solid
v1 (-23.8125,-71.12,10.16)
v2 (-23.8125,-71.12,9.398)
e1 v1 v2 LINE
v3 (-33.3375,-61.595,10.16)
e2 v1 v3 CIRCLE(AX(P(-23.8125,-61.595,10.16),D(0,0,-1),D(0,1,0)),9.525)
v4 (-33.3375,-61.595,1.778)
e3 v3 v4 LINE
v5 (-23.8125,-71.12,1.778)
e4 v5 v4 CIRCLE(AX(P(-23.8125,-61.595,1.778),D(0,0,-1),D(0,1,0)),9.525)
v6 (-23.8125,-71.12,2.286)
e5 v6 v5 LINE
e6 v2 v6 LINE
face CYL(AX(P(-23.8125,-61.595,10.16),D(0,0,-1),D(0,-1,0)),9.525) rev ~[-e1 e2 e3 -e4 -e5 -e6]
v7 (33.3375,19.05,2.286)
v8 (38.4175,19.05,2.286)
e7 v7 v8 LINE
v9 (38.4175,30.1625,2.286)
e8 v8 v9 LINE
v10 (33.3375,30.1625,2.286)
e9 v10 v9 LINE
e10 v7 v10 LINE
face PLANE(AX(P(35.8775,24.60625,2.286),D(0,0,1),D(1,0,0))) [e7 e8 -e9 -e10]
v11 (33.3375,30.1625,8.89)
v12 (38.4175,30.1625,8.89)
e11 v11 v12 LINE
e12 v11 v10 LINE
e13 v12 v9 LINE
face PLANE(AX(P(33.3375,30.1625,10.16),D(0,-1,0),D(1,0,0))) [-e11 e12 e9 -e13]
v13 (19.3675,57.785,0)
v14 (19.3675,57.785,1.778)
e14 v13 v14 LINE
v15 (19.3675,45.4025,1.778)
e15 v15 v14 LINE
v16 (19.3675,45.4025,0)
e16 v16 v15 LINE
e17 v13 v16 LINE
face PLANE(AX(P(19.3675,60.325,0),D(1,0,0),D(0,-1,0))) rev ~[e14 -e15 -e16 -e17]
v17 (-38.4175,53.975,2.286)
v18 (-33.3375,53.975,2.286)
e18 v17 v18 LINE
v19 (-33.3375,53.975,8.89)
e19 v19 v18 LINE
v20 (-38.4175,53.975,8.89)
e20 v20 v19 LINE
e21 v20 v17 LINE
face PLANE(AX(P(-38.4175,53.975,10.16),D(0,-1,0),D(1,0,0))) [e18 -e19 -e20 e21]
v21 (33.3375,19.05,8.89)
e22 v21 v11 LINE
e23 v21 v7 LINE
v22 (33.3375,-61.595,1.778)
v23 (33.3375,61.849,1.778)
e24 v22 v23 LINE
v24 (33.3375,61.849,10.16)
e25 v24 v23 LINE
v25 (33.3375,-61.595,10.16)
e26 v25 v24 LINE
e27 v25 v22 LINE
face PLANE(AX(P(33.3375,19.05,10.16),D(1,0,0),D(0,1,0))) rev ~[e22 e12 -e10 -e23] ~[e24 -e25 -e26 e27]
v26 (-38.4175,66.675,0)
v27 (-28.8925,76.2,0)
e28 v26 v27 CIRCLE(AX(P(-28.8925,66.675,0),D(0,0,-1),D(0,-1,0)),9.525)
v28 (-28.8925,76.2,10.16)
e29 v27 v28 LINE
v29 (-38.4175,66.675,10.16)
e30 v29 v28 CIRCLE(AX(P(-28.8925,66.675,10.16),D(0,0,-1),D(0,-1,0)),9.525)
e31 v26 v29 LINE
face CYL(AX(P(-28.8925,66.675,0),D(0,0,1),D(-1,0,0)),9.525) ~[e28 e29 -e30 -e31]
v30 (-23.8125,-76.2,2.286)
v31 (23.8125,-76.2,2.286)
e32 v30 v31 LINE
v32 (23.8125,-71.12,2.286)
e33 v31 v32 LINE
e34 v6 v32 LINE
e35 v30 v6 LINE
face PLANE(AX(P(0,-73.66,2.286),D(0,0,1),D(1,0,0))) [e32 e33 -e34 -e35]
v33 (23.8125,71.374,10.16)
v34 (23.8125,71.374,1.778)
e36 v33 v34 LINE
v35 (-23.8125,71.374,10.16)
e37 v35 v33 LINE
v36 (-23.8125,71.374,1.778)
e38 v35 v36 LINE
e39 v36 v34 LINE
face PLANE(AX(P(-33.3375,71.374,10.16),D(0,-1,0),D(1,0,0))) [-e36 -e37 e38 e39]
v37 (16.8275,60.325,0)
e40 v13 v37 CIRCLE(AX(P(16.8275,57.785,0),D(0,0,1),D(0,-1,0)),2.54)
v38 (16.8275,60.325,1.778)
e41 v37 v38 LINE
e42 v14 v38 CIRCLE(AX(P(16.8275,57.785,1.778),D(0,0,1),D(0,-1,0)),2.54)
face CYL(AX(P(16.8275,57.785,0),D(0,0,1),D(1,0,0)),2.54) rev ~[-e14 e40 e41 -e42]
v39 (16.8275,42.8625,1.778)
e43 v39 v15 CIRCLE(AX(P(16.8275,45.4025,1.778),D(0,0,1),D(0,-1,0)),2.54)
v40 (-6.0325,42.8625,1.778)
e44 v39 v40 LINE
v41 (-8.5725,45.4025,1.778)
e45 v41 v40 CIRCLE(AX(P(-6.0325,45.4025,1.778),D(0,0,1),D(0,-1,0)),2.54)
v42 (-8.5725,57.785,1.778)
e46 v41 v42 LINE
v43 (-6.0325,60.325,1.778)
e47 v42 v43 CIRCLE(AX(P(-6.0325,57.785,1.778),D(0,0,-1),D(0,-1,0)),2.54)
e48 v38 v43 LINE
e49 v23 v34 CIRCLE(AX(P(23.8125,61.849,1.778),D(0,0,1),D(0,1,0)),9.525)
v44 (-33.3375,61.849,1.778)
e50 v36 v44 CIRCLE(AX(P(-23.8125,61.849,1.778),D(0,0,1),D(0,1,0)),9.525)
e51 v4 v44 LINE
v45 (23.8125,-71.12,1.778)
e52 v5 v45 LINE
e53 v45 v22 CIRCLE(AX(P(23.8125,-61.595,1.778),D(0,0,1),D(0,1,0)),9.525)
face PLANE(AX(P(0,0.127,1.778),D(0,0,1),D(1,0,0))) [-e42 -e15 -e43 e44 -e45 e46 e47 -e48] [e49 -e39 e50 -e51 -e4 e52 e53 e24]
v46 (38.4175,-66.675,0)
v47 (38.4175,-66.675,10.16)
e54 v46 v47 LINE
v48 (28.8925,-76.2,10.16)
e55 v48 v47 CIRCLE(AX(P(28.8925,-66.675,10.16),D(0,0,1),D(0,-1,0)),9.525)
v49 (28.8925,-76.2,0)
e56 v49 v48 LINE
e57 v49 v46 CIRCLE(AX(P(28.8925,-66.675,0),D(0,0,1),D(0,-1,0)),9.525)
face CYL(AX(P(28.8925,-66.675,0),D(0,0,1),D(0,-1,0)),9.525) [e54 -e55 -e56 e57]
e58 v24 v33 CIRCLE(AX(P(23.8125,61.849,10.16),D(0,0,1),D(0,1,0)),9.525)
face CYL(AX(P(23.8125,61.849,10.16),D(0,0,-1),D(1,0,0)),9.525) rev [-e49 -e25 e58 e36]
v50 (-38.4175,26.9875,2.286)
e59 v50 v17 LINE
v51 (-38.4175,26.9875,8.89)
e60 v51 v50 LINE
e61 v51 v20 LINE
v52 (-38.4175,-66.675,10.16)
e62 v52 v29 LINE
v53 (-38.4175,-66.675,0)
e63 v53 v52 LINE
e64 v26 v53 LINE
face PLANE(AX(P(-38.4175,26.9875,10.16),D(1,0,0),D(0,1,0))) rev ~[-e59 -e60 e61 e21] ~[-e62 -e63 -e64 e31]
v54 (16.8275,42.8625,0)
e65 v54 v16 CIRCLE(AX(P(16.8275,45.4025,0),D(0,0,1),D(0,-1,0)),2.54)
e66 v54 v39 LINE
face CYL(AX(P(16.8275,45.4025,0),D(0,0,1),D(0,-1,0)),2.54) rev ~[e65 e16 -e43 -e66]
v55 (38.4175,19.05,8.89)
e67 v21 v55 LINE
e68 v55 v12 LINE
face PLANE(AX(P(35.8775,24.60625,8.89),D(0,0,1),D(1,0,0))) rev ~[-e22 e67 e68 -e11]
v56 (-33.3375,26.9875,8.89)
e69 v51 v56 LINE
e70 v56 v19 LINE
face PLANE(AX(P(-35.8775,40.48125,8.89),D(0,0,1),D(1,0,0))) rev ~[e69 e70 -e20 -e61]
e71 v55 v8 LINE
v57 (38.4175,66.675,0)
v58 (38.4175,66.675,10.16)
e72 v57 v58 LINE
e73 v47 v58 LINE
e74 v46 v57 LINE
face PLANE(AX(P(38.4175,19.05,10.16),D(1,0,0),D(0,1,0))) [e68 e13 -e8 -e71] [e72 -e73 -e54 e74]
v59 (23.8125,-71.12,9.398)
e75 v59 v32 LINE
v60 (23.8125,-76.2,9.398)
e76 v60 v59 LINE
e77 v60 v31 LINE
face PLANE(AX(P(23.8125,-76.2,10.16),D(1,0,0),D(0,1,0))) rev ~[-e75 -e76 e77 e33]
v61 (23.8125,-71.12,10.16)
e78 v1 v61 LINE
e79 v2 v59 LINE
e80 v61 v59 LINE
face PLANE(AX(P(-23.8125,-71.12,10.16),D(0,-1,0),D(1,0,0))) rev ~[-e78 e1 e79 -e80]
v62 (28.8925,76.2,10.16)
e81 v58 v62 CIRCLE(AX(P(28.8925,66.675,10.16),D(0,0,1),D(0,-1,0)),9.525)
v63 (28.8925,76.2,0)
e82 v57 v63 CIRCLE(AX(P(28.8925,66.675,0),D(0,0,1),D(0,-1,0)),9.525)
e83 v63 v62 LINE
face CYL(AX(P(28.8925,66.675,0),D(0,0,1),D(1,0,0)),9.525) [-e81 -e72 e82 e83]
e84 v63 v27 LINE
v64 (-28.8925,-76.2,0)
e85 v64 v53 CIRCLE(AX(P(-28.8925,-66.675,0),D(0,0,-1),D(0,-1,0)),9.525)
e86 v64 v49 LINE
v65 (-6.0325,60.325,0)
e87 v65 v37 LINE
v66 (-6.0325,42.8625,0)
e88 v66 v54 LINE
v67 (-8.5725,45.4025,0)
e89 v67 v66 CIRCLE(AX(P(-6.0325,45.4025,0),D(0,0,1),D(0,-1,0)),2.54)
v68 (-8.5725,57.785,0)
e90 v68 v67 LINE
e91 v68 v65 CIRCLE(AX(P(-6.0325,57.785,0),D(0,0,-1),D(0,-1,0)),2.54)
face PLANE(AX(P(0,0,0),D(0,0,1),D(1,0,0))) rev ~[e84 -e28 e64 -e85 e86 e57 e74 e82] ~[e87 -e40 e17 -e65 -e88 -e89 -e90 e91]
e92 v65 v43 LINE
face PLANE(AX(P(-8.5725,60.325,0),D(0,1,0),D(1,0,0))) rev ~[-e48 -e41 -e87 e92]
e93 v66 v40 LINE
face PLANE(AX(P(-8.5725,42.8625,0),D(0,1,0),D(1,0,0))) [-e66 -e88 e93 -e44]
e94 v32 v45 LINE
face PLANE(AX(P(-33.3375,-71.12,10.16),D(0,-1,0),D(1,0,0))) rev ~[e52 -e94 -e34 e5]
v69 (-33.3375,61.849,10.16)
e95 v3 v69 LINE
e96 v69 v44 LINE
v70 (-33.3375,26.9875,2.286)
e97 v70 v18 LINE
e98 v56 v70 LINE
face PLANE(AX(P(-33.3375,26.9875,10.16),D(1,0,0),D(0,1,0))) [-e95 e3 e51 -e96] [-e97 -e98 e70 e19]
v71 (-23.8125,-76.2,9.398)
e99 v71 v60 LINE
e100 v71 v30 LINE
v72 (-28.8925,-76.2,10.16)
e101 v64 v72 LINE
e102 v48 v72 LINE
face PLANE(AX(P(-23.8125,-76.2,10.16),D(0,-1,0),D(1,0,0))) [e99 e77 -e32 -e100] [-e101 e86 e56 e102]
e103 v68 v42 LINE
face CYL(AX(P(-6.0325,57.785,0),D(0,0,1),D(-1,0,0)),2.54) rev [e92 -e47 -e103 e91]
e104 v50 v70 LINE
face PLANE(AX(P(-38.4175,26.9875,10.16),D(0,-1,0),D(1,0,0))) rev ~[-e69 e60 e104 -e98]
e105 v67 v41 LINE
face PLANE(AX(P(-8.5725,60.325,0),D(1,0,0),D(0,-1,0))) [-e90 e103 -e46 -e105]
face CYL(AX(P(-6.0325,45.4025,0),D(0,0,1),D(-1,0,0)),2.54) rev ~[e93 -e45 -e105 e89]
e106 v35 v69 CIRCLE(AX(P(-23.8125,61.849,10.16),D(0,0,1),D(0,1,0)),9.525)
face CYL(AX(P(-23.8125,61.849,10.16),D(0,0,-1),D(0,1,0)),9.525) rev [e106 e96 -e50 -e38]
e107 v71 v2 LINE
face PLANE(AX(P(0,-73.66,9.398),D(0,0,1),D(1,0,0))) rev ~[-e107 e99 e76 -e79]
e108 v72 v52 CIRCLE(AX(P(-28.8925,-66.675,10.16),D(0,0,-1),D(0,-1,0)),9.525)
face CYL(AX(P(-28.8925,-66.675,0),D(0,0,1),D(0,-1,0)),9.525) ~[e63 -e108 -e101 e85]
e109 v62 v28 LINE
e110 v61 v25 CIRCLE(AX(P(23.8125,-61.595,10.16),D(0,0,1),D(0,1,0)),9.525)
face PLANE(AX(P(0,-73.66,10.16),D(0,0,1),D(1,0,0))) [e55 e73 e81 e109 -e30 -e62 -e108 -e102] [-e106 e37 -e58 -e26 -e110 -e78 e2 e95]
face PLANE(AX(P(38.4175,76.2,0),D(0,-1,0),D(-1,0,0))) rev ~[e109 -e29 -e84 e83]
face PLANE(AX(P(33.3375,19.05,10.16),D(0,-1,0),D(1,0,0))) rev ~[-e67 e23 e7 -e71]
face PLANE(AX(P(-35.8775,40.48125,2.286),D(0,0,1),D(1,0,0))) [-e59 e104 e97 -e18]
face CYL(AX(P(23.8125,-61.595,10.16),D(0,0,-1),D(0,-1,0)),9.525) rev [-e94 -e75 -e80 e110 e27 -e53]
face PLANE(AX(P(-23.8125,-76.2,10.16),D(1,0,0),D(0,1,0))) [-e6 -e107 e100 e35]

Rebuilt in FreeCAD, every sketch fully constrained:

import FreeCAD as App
import Part
import Sketcher
from FreeCAD import Vector
Q = App.Units.Quantity


def edges_at(feature, points):
    """Names of the edges that pass closest to the given points."""
    edges = feature.Shape.Edges
    near = lambda p: min(range(len(edges)), key=lambda i: edges[i].distToShape(Part.Vertex(*p))[0])
    return sorted({f"Edge{near(p) + 1}" for p in points})


def add_polygon(sketch, points):
    """Adds a closed chain of lines whose ends are joined by coincident constraints."""
    first, n = sketch.GeometryCount, len(points)
    for a, b in zip(points, points[1:] + points[:1]):
        sketch.addGeometry(Part.LineSegment(App.Vector(*a, 0), App.Vector(*b, 0)), False)
    for i in range(n):
        sketch.addConstraint(Sketcher.Constraint("Coincident", first + i, 2, first + (i + 1) % n, 1))

doc = App.newDocument("Part")
body = doc.addObject("PartDesign::Body", "Body")

sketch1 = body.newObject("Sketcher::SketchObject", "Sketch")
sketch1.AttachmentSupport = (doc.getObject("XY_Plane"), [""])
sketch1.MapMode = "FlatFace"
add_polygon(sketch1, [(-38, -76), (38, -76), (38, 76), (-38, 76)])
sketch1.addConstraint([
    Sketcher.Constraint("Horizontal", 0),
    Sketcher.Constraint("Vertical", 1),
    Sketcher.Constraint("Horizontal", 2),
    Sketcher.Constraint("Vertical", 3),
    Sketcher.Constraint("Symmetric", 0, 2, 2, 2, -1, 1),
    Sketcher.Constraint("DistanceY", 1, 1, 1, 2, Q("6 in")),
    Sketcher.Constraint("DistanceX", 0, 1, 0, 2, Q("3.025 in")),
])
pad1 = body.newObject("PartDesign::Pad", "Pad")
pad1.Profile = sketch1
pad1.Length = Q("0.4 in")

sketch2 = body.newObject("Sketcher::SketchObject", "Sketch001")
sketch2.AttachmentSupport = (doc.getObject("XY_Plane"), [""])
sketch2.MapMode = "FlatFace"
sketch2.AttachmentOffset = App.Placement(Vector(0, 0, 0.4 * 25.4), App.Rotation())
add_polygon(sketch2, [(-33, 71), (-33, -71), (33, -71), (33, 71)])
sketch2.addConstraint([
    Sketcher.Constraint("Vertical", 0),
    Sketcher.Constraint("Horizontal", 1),
    Sketcher.Constraint("Vertical", 2),
    Sketcher.Constraint("Horizontal", 3),
    Sketcher.Constraint("DistanceY", 0, 2, 0, 1, Q("5.61 in")),
    Sketcher.Constraint("DistanceY", 0, 2, -1, 1, Q("2.8 in")),
    Sketcher.Constraint("DistanceX", 1, 1, 1, 2, Q("2.625 in")),
    Sketcher.Constraint("DistanceX", 0, 2, -1, 1, Q("1.3125 in")),
])
pocket1 = body.newObject("PartDesign::Pocket", "Pocket")
pocket1.Profile = sketch2
pocket1.Length = Q("0.33 in")
doc.recompute()

fillet = body.newObject("PartDesign::Fillet", "Fillet")
fillet.Base = (pocket1, edges_at(pocket1, [
    (-38.417, 76.2, 5.08),
    (-38.417, -76.2, 5.08),
    (-33.337, 71.374, 5.969),
    (-33.337, -71.12, 5.969),
    (33.337, -71.12, 5.969),
    (38.417, -76.2, 5.08),
    (38.417, 76.2, 5.08),
    (33.337, 71.374, 5.969),
]))
fillet.Radius = Q("0.375 in")

sketch3 = body.newObject("Sketcher::SketchObject", "Sketch002")
sketch3.AttachmentSupport = (doc.getObject("XY_Plane"), [""])
sketch3.MapMode = "FlatFace"
sketch3.AttachmentOffset = App.Placement(Vector(0, 0, 0.4 * 25.4), App.Rotation())
add_polygon(sketch3, [(-24, -71), (-24, -76), (24, -76), (24, -71)])
add_polygon(sketch3, [(33, 30), (33, 19), (38, 19), (38, 30)])
add_polygon(sketch3, [(-38, 54), (-38, 27), (-33, 27), (-33, 54)])
sketch3.addConstraint([
    Sketcher.Constraint("Vertical", 0),
    Sketcher.Constraint("Horizontal", 1),
    Sketcher.Constraint("Vertical", 2),
    Sketcher.Constraint("Horizontal", 3),
    Sketcher.Constraint("Vertical", 4),
    Sketcher.Constraint("Horizontal", 5),
    Sketcher.Constraint("Vertical", 6),
    Sketcher.Constraint("Horizontal", 7),
    Sketcher.Constraint("Vertical", 8),
    Sketcher.Constraint("Horizontal", 9),
    Sketcher.Constraint("Vertical", 10),
    Sketcher.Constraint("Horizontal", 11),
    Sketcher.Constraint("Equal", 7, 9),
    Sketcher.Constraint("Equal", 11, 0),
    Sketcher.Constraint("DistanceX", 5, 1, 5, 2, Q("0.2 in")),
    Sketcher.Constraint("DistanceY", 0, 2, -1, 1, Q("3 in")),
    Sketcher.Constraint("DistanceX", 1, 1, 1, 2, Q("1.875 in")),
    Sketcher.Constraint("DistanceY", 4, 2, 4, 1, Q("0.4375 in")),
    Sketcher.Constraint("DistanceY", 8, 2, 8, 1, Q("1.0625 in")),
    Sketcher.Constraint("DistanceY", -1, 1, 4, 2, Q("0.75 in")),
    Sketcher.Constraint("DistanceX", 3, 2, 4, 2, Q("2.25 in")),
    Sketcher.Constraint("DistanceX", 0, 2, -1, 1, Q("0.9375 in")),
    Sketcher.Constraint("DistanceY", -1, 1, 8, 2, Q("1.0625 in")),
    Sketcher.Constraint("DistanceX", 9, 2, -1, 1, Q("1.3125 in")),
])
pocket2 = body.newObject("PartDesign::Pocket", "Pocket001")
pocket2.Profile = sketch3
pocket2.Length = Q("0.31 in")

sketch4 = body.newObject("Sketcher::SketchObject", "Sketch003")
sketch4.AttachmentSupport = (doc.getObject("XY_Plane"), [""])
sketch4.MapMode = "FlatFace"
add_polygon(sketch4, [(-9, 43), (-9, 60), (19, 60), (19, 43)])
sketch4.addConstraint([
    Sketcher.Constraint("Vertical", 0),
    Sketcher.Constraint("Horizontal", 1),
    Sketcher.Constraint("Vertical", 2),
    Sketcher.Constraint("Horizontal", 3),
    Sketcher.Constraint("DistanceX", 1, 1, 1, 2, Q("1.1 in")),
    Sketcher.Constraint("DistanceY", 0, 1, 0, 2, Q("0.6875 in")),
    Sketcher.Constraint("DistanceY", -1, 1, 0, 2, Q("2.375 in")),
    Sketcher.Constraint("DistanceX", 0, 2, -1, 1, Q("0.3375 in")),
])
pocket3 = body.newObject("PartDesign::Pocket", "Pocket002")
pocket3.Profile = sketch4
pocket3.Length = Q("0.09 in")
pocket3.Reversed = True
doc.recompute()

fillet2 = body.newObject("PartDesign::Fillet", "Fillet001")
fillet2.Base = (pocket3, edges_at(pocket3, [
    (19.367, 60.325, 0.889),
    (-8.572, 60.325, 0.889),
    (-8.572, 42.862, 0.889),
    (19.367, 42.862, 0.889),
]))
fillet2.Radius = Q("0.1 in")

sketch5 = body.newObject("Sketcher::SketchObject", "Sketch004")
sketch5.AttachmentSupport = (doc.getObject("XY_Plane"), [""])
sketch5.MapMode = "FlatFace"
sketch5.AttachmentOffset = App.Placement(Vector(0, 0, 0.4 * 25.4), App.Rotation())
add_polygon(sketch5, [(-38, 54), (-38, 27), (-33, 27), (-33, 54)])
sketch5.addConstraint([
    Sketcher.Constraint("Vertical", 0),
    Sketcher.Constraint("Horizontal", 1),
    Sketcher.Constraint("Vertical", 2),
    Sketcher.Constraint("Horizontal", 3),
    Sketcher.Constraint("DistanceX", 1, 1, 1, 2, Q("0.2 in")),
    Sketcher.Constraint("DistanceY", 0, 2, 0, 1, Q("1.0625 in")),
    Sketcher.Constraint("DistanceY", -1, 1, 0, 2, Q("1.0625 in")),
    Sketcher.Constraint("DistanceX", 1, 2, -1, 1, Q("1.3125 in")),
])
pad2 = body.newObject("PartDesign::Pad", "Pad001")
pad2.Profile = sketch5
pad2.Length = Q("0.05 in")
pad2.Reversed = True

sketch6 = body.newObject("Sketcher::SketchObject", "Sketch005")
sketch6.AttachmentSupport = (doc.getObject("XY_Plane"), [""])
sketch6.MapMode = "FlatFace"
sketch6.AttachmentOffset = App.Placement(Vector(0, 0, 0.4 * 25.4), App.Rotation())
add_polygon(sketch6, [(33, 30), (33, 19), (38, 19), (38, 30)])
sketch6.addConstraint([
    Sketcher.Constraint("Vertical", 0),
    Sketcher.Constraint("Horizontal", 1),
    Sketcher.Constraint("Vertical", 2),
    Sketcher.Constraint("Horizontal", 3),
    Sketcher.Constraint("DistanceX", 1, 1, 1, 2, Q("0.2 in")),
    Sketcher.Constraint("DistanceY", 0, 2, 0, 1, Q("0.4375 in")),
    Sketcher.Constraint("DistanceY", -1, 1, 0, 2, Q("0.75 in")),
    Sketcher.Constraint("DistanceX", -1, 1, 0, 2, Q("1.3125 in")),
])
pad3 = body.newObject("PartDesign::Pad", "Pad002")
pad3.Profile = sketch6
pad3.Length = Q("0.05 in")
pad3.Reversed = True

sketch7 = body.newObject("Sketcher::SketchObject", "Sketch006")
sketch7.AttachmentSupport = (doc.getObject("XY_Plane"), [""])
sketch7.MapMode = "FlatFace"
sketch7.AttachmentOffset = App.Placement(Vector(0, 0, 0.4 * 25.4), App.Rotation())
add_polygon(sketch7, [(-24, -71), (-24, -76), (24, -76), (24, -71)])
sketch7.addConstraint([
    Sketcher.Constraint("Vertical", 0),
    Sketcher.Constraint("Horizontal", 1),
    Sketcher.Constraint("Vertical", 2),
    Sketcher.Constraint("Horizontal", 3),
    Sketcher.Constraint("DistanceY", 0, 2, 0, 1, Q("0.2 in")),
    Sketcher.Constraint("DistanceY", 0, 2, -1, 1, Q("3 in")),
    Sketcher.Constraint("DistanceX", 1, 1, 1, 2, Q("1.875 in")),
    Sketcher.Constraint("DistanceX", 0, 2, -1, 1, Q("0.9375 in")),
])
pad4 = body.newObject("PartDesign::Pad", "Pad003")
pad4.Profile = sketch7
pad4.Length = Q("0.03 in")
pad4.Reversed = True

doc.recompute()
